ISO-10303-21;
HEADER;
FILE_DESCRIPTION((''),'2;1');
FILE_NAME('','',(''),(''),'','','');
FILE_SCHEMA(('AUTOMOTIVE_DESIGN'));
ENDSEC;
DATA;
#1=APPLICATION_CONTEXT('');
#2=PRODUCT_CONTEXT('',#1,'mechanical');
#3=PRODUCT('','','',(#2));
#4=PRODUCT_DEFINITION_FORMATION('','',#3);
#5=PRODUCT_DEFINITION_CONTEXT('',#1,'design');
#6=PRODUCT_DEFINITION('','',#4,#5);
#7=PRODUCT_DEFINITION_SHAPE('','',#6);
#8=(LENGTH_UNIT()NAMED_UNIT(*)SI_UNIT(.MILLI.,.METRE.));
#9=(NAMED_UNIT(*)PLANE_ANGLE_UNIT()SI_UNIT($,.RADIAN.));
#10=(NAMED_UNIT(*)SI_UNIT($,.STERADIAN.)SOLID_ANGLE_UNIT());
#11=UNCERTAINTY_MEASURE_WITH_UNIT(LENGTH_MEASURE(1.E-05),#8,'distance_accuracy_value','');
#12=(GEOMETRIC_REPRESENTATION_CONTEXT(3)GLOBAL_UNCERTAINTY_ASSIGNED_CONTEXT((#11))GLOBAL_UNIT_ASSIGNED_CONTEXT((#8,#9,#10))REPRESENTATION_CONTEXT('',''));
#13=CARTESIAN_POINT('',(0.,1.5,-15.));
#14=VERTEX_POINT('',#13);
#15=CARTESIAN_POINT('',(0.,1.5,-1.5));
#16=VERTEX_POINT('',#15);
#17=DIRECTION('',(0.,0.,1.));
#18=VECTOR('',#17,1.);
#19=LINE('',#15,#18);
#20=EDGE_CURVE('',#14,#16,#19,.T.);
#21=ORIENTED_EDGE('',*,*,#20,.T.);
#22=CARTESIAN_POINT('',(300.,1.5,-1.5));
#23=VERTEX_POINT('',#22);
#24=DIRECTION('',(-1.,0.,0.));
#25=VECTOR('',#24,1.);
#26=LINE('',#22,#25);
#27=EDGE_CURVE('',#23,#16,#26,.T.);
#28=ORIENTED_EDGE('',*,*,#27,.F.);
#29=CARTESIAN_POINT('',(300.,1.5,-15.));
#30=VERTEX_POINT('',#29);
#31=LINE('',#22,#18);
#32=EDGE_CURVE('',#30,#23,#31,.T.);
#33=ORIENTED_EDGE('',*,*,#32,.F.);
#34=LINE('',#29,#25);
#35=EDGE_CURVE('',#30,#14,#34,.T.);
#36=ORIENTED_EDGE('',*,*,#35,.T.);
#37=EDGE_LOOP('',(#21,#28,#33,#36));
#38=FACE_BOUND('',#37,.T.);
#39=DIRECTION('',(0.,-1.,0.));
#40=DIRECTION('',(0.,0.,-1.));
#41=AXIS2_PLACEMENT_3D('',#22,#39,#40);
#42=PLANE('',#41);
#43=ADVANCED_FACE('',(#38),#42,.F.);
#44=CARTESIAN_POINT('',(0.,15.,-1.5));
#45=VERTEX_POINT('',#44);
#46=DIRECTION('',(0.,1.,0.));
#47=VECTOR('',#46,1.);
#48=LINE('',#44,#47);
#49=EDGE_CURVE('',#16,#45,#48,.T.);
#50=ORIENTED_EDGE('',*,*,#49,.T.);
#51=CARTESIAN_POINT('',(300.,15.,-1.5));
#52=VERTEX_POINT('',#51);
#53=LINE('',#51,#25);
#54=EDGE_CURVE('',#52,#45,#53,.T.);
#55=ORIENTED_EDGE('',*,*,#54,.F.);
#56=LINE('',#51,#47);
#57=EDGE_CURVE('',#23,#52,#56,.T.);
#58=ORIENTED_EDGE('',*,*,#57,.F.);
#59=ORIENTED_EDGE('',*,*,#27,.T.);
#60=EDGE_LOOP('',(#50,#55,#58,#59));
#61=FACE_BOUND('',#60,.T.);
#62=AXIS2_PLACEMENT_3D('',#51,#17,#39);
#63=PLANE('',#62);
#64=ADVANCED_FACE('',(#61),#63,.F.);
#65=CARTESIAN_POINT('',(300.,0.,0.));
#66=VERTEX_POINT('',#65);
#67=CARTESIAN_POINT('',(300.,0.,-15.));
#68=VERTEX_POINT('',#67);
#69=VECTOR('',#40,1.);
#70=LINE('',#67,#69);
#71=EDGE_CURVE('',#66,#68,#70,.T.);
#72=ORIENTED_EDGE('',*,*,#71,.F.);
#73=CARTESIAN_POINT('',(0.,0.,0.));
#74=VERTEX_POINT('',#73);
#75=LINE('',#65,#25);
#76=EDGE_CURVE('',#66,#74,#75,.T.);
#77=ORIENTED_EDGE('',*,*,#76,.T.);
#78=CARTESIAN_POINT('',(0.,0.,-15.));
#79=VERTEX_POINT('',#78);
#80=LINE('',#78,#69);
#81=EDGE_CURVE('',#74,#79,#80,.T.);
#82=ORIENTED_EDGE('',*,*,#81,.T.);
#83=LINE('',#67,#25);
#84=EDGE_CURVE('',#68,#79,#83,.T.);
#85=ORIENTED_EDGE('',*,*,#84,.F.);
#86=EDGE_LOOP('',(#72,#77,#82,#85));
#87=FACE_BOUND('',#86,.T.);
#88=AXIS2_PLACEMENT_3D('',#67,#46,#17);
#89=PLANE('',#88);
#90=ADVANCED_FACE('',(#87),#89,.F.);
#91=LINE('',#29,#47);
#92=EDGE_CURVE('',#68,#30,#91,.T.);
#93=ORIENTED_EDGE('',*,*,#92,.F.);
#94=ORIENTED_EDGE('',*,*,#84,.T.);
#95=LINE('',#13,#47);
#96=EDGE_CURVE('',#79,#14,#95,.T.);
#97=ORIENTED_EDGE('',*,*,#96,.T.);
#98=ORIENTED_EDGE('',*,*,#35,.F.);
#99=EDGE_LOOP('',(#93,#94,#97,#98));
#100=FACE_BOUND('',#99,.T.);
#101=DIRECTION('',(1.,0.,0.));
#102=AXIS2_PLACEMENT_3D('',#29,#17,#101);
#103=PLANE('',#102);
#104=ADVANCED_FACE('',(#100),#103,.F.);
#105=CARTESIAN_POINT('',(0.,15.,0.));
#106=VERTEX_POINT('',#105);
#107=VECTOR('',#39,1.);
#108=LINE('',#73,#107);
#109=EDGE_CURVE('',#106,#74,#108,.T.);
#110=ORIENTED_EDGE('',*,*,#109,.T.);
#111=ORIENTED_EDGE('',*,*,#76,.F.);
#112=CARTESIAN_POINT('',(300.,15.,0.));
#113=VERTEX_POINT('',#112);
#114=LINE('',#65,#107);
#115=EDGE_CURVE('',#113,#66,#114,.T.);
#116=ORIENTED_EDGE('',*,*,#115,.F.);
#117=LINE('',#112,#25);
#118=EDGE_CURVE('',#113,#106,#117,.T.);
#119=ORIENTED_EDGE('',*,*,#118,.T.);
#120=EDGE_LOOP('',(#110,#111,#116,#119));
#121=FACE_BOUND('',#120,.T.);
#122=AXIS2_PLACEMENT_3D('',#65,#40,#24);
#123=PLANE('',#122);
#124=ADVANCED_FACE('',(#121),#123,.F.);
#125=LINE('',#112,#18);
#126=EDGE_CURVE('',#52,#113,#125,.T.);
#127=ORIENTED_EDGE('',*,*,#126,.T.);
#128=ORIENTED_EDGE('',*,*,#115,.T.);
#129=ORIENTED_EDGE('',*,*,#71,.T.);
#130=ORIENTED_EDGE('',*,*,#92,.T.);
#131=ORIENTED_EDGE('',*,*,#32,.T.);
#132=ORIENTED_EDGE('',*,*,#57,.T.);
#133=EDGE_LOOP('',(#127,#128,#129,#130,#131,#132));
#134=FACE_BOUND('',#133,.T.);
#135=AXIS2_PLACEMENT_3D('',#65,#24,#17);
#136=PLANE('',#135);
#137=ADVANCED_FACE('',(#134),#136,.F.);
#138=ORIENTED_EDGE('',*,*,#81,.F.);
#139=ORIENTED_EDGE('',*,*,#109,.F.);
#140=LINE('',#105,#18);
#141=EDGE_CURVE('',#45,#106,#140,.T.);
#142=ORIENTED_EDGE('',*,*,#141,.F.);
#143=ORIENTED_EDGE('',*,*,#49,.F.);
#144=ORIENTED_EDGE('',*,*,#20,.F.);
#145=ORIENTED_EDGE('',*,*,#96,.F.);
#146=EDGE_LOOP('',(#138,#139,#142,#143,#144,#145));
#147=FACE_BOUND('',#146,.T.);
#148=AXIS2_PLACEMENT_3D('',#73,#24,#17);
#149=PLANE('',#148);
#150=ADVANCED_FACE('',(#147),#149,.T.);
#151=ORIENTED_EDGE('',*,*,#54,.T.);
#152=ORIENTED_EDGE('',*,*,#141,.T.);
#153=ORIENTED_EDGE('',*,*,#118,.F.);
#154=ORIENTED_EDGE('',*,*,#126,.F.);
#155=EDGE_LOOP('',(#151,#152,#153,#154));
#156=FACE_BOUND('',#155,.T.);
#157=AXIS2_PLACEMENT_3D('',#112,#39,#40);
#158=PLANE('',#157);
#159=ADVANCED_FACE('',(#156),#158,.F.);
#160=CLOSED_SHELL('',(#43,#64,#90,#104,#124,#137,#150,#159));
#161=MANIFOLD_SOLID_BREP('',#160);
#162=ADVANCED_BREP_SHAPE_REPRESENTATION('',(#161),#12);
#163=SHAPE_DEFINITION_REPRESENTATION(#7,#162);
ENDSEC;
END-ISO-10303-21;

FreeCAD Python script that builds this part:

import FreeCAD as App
import Part
import Sketcher
from FreeCAD import Vector


def add_polygon(sketch, points):
    """Adds a closed chain of lines whose ends are joined by coincident constraints."""
    first, n = sketch.GeometryCount, len(points)
    for a, b in zip(points, points[1:] + points[:1]):
        sketch.addGeometry(Part.LineSegment(App.Vector(*a, 0), App.Vector(*b, 0)), False)
    for i in range(n):
        sketch.addConstraint(Sketcher.Constraint("Coincident", first + i, 2, first + (i + 1) % n, 1))

doc = App.newDocument("Part")
body = doc.addObject("PartDesign::Body", "Body")

# Sketch on YZ plane
sketch1 = doc.addObject("Sketcher::SketchObject", "Sketch")
body.addObject(sketch1)
sketch1.AttachmentSupport = (doc.YZ_Plane, [""])
sketch1.MapMode = "FlatFace"
add_polygon(sketch1, [(15, 0), (0, 0), (0, -15), (1.5, -15), (1.5, -1.5), (15, -1.5)])  # lines 0-5
sketch1.addConstraint([
    Sketcher.Constraint("Horizontal", 0),
    Sketcher.Constraint("Vertical", 1),
    Sketcher.Constraint("Horizontal", 2),
    Sketcher.Constraint("Vertical", 3),
    Sketcher.Constraint("Horizontal", 4),
    Sketcher.Constraint("Vertical", 5),
    Sketcher.Constraint("Coincident", 0, 2, -1, 1),
    Sketcher.Constraint("Equal", 0, 1),
    Sketcher.Constraint("Equal", 4, 3),
    Sketcher.Constraint("DistanceX", 0, 2, 0, 1, 15.0),
    Sketcher.Constraint("DistanceX", 2, 1, 2, 2, 1.5),
])
pad1 = doc.addObject("PartDesign::Pad", "Pad")
body.addObject(pad1)
pad1.Profile = sketch1
pad1.Length = 300

doc.recompute()
